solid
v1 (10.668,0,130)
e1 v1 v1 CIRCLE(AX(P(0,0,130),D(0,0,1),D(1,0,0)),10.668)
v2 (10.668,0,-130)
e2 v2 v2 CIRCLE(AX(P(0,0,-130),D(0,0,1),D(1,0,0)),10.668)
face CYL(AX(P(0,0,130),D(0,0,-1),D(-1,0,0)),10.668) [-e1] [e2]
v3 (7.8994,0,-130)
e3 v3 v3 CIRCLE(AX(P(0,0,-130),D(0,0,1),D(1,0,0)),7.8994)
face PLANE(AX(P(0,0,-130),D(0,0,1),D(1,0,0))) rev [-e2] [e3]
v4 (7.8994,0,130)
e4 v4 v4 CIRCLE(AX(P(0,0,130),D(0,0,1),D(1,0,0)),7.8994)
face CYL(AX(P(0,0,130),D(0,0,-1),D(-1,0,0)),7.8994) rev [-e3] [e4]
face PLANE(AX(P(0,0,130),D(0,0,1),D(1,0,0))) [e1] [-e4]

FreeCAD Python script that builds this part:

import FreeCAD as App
import Part
import Sketcher
Q = App.Units.Quantity

doc = App.newDocument("Part")
body = doc.addObject("PartDesign::Body", "Body")

sketch1 = body.newObject("Sketcher::SketchObject", "Sketch")
sketch1.AttachmentSupport = (doc.getObject("XY_Plane"), [""])
sketch1.MapMode = "FlatFace"
sketch1.addGeometry([
    Part.Circle(App.Vector(0, 0, 0), App.Vector(0, 0, 1), 11),
    Part.Circle(App.Vector(0, 0, 0), App.Vector(0, 0, 1), 8),
], False)
sketch1.addConstraint([
    Sketcher.Constraint("Coincident", 0, 3, -1, 1),
    Sketcher.Constraint("Coincident", 1, 3, -1, 1),
    Sketcher.Constraint("Diameter", 0, Q("0.84 in")),
    Sketcher.Constraint("Diameter", 1, Q("0.622 in")),
])
pad1 = body.newObject("PartDesign::Pad", "Pad")
pad1.Profile = sketch1
pad1.Length = 260
pad1.Midplane = True

doc.recompute()
